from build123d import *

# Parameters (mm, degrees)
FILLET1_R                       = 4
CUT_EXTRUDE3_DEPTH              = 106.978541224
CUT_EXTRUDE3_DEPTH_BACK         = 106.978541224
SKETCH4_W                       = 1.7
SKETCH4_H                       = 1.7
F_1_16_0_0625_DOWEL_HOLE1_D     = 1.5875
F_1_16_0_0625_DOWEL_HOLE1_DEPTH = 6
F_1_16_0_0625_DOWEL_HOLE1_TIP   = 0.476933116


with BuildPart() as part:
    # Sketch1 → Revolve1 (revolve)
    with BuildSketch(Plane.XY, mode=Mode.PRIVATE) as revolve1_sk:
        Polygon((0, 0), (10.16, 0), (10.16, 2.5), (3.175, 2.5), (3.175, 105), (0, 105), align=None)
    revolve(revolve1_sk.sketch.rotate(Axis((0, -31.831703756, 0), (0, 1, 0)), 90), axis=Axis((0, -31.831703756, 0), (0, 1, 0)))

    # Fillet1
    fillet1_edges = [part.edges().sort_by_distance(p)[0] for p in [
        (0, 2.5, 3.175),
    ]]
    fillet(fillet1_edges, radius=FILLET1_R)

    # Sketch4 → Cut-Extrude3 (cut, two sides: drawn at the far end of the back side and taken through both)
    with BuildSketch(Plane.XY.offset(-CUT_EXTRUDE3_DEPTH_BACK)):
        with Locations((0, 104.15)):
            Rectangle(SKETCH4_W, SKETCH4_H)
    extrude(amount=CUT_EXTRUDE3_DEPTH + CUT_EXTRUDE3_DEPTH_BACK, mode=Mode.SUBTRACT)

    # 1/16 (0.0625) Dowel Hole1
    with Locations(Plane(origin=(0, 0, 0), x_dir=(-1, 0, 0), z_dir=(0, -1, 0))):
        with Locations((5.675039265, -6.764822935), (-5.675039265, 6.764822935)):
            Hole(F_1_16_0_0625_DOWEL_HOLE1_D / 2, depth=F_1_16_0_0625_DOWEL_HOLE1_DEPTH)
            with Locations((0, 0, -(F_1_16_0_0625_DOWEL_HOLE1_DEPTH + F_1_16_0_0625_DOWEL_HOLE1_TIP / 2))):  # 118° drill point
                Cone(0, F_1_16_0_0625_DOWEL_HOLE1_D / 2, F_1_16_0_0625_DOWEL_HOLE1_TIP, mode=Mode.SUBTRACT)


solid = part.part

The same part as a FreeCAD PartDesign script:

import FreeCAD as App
import Part
import Sketcher
from FreeCAD import Vector


def edges_at(feature, points):
    """Names of the edges that pass closest to the given points."""
    edges = feature.Shape.Edges
    near = lambda p: min(range(len(edges)), key=lambda i: edges[i].distToShape(Part.Vertex(*p))[0])
    return sorted({f"Edge{near(p) + 1}" for p in points})


def add_polygon(sketch, points):
    """Adds a closed chain of lines whose ends are joined by coincident constraints."""
    first, n = sketch.GeometryCount, len(points)
    for a, b in zip(points, points[1:] + points[:1]):
        sketch.addGeometry(Part.LineSegment(App.Vector(*a, 0), App.Vector(*b, 0)), False)
    for i in range(n):
        sketch.addConstraint(Sketcher.Constraint("Coincident", first + i, 2, first + (i + 1) % n, 1))

doc = App.newDocument("Part")
params = doc.addObject("Spreadsheet::Sheet", "Params")
for row, (alias, value) in enumerate([
    ("sketch1_height", "105 mm"),
    ("sketch1_height2", "2.5 mm"),
    ("sketch1_width", "10.16 mm"),
    ("revolution_angle", "360 deg"),
    ("fillet_radius", "4 mm"),
    ("sketch2_width", "1.7 mm"),
    ("hole_diameter", "1.5875 mm"),
    ("hole_depth", "6 mm"),
], start=1):
    params.set(f"A{row}", alias)
    params.set(f"B{row}", "=" + value)
    params.setAlias(f"B{row}", alias)

body = doc.addObject("PartDesign::Body", "Body")

sketch1 = doc.addObject("Sketcher::SketchObject", "Sketch")
body.addObject(sketch1)
sketch1.AttachmentSupport = (doc.XY_Plane, [""])
sketch1.MapMode = "FlatFace"
add_polygon(sketch1, [(0, 0), (10.2, 0), (10.2, 2.5), (3.2, 2.5), (3.2, 105), (0, 105)])
sketch1.addConstraint([
    Sketcher.Constraint("Horizontal", 0),
    Sketcher.Constraint("Vertical", 1),
    Sketcher.Constraint("Horizontal", 2),
    Sketcher.Constraint("Vertical", 3),
    Sketcher.Constraint("Horizontal", 4),
    Sketcher.Constraint("Vertical", 5),
    Sketcher.Constraint("Coincident", 5, 2, -1, 1),
    Sketcher.Constraint("DistanceY", 5, 2, 5, 1, 105.0),
    Sketcher.Constraint("DistanceY", 1, 1, 1, 2, 2.5),
    Sketcher.Constraint("DistanceX", 0, 1, 0, 2, 10.16),
    Sketcher.Constraint("DistanceX", 2, 2, 2, 1, 6.985),
])
sketch1.setExpression("Constraints[13]", "Params.sketch1_height")
sketch1.setExpression("Constraints[14]", "Params.sketch1_height2")
sketch1.setExpression("Constraints[15]", "Params.sketch1_width")
revolution = doc.addObject("PartDesign::Revolution", "Revolution")
body.addObject(revolution)
revolution.Profile = sketch1
revolution.ReferenceAxis = (sketch1, ["V_Axis"])
revolution.setExpression("Angle", "Params.revolution_angle")
doc.recompute()

fillet = doc.addObject("PartDesign::Fillet", "Fillet")
body.addObject(fillet)
fillet.Base = (revolution, edges_at(revolution, [(0, 2.5, 3.175)]))
fillet.setExpression("Radius", "Params.fillet_radius")

sketch2 = doc.addObject("Sketcher::SketchObject", "Sketch001")
body.addObject(sketch2)
sketch2.AttachmentSupport = (doc.XY_Plane, [""])
sketch2.MapMode = "FlatFace"
add_polygon(sketch2, [(-0.8, 105), (-0.8, 103.3), (0.8, 103.3), (0.8, 105)])
sketch2.addConstraint([
    Sketcher.Constraint("Vertical", 0),
    Sketcher.Constraint("Horizontal", 1),
    Sketcher.Constraint("Vertical", 2),
    Sketcher.Constraint("Horizontal", 3),
    Sketcher.Constraint("Equal", 3, 0),
    Sketcher.Constraint("DistanceX", 1, 1, 1, 2, 1.7),
    Sketcher.Constraint("DistanceY", -1, 1, 2, 2, 105.0),
    Sketcher.Constraint("DistanceX", 0, 2, -1, 1, 0.85),
])
sketch2.setExpression("Constraints[9]", "Params.sketch2_width")
pocket1 = doc.addObject("PartDesign::Pocket", "Pocket")
body.addObject(pocket1)
pocket1.Profile = sketch2
pocket1.Type = "ThroughAll"
pocket1.Midplane = True

sketch3 = doc.addObject("Sketcher::SketchObject", "Sketch002")
body.addObject(sketch3)
sketch3.AttachmentSupport = (doc.XZ_Plane, [""])
sketch3.MapMode = "FlatFace"
sketch3.addGeometry([
    Part.Circle(Vector(-5.7, 6.8, 0), Vector(0, 0, 1), 0.8),
    Part.Circle(Vector(5.7, -6.8, 0), Vector(0, 0, 1), 0.8),
], False)
sketch3.addConstraint([
    Sketcher.Constraint("Equal", 0, 1),
    Sketcher.Constraint("Symmetric", 0, 3, 1, 3, -1, 1),
    Sketcher.Constraint("Diameter", 0, 1.5875),
    Sketcher.Constraint("DistanceX", 0, 3, -1, 1, 5.675039),
    Sketcher.Constraint("DistanceY", -1, 1, 0, 3, 6.764823),
])
doc.recompute()
hole = doc.addObject("PartDesign::Hole", "Hole")
body.addObject(hole)
hole.Profile = sketch3
hole.ThreadType = "None"
hole.setExpression("Diameter", "Params.hole_diameter")
hole.DepthType = "Dimension"
hole.setExpression("Depth", "Params.hole_depth")
hole.DrillPoint = "Angled"
hole.DrillPointAngle = 118

doc.recompute()
